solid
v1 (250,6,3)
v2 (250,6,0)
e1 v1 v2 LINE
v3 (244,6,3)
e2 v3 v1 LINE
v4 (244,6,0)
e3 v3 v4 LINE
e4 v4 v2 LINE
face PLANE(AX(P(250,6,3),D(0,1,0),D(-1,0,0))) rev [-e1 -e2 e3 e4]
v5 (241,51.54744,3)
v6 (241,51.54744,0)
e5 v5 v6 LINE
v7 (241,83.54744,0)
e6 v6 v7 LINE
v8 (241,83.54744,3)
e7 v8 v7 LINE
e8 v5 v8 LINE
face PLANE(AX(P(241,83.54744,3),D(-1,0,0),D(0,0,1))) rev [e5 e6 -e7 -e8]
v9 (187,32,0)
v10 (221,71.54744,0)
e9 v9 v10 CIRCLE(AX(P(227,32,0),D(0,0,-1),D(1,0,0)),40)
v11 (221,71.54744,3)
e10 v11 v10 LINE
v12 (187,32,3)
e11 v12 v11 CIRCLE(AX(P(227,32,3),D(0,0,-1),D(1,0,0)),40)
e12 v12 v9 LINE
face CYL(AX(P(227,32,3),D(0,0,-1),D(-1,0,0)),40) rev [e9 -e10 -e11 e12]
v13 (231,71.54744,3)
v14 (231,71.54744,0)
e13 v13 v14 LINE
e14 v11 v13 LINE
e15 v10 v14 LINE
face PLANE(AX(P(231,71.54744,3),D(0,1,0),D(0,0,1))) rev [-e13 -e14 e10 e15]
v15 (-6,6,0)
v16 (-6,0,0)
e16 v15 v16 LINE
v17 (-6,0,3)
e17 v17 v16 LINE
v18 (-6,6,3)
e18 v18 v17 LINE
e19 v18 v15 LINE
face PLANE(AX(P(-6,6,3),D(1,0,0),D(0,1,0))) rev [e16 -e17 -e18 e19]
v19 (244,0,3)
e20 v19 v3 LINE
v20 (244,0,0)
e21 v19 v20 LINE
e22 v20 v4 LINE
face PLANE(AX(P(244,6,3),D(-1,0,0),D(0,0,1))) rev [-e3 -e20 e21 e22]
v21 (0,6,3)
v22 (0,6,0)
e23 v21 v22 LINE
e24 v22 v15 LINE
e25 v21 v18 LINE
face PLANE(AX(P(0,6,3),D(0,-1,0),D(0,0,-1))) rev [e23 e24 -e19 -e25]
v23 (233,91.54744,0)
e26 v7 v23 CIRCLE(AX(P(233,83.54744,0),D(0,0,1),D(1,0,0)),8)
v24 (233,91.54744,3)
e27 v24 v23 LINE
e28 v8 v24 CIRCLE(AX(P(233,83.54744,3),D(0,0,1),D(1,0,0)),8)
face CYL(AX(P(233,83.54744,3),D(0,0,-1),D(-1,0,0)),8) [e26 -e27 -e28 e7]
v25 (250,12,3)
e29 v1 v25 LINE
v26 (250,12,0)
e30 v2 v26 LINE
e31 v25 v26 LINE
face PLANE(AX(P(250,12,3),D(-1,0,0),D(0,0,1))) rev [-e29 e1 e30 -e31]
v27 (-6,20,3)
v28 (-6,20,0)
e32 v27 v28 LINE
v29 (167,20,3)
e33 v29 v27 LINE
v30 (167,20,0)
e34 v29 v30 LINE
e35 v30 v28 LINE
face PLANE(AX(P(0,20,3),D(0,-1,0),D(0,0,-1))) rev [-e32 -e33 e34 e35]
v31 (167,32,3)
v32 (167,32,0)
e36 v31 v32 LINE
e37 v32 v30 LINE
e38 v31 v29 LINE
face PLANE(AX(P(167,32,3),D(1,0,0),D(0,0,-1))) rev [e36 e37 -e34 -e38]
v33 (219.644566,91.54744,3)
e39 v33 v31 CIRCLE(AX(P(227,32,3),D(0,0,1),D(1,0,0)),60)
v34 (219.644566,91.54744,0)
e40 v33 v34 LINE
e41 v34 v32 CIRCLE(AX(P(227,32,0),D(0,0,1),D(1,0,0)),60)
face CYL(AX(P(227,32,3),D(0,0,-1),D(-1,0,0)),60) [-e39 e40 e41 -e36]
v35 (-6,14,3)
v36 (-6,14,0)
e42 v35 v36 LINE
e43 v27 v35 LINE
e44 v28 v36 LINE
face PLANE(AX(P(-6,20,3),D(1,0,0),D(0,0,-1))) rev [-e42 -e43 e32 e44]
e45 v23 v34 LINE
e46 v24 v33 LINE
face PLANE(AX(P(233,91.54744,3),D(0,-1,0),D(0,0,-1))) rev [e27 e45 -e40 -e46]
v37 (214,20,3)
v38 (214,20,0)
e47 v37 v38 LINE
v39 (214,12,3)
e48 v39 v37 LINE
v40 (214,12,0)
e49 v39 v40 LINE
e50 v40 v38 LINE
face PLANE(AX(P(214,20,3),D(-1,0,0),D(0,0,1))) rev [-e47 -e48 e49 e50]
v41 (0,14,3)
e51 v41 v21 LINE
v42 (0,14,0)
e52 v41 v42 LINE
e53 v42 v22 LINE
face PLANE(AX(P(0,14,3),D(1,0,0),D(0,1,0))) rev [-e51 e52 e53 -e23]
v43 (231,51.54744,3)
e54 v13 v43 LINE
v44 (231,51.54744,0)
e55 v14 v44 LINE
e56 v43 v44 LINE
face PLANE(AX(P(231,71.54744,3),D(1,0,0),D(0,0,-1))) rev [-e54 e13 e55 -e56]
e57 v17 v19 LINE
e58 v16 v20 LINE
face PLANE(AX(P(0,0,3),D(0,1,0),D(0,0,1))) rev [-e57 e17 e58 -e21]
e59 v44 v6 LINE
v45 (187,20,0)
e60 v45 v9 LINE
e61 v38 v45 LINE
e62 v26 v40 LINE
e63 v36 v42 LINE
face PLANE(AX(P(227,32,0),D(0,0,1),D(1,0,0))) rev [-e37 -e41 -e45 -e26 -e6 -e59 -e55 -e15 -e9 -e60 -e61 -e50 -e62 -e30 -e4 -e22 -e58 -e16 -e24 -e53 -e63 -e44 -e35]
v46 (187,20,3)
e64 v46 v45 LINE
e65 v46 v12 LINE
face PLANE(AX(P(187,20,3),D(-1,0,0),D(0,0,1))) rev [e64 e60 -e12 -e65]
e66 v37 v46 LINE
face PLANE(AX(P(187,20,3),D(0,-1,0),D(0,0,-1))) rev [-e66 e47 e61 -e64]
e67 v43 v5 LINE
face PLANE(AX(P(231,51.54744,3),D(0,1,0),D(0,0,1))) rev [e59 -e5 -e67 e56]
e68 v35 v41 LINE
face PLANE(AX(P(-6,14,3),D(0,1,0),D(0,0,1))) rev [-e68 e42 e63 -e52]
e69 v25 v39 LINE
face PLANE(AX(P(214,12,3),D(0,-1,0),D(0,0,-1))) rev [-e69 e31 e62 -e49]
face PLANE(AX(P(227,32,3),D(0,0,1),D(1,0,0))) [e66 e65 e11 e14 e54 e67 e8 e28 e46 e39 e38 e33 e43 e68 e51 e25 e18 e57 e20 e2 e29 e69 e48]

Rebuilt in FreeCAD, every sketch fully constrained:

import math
import FreeCAD as App
import Part
import Sketcher

V = App.Vector

doc = App.newDocument("Part")
body = doc.addObject("PartDesign::Body", "Body")

# Sketch on XY plane
sketch1 = body.newObject("Sketcher::SketchObject", "Sketch")
sketch1.AttachmentSupport = (doc.getObject("XY_Plane"), [""])
sketch1.MapMode = "FlatFace"
sketch1.addGeometry([
    Part.LineSegment(V(244, 0, 0), V(244, 6, 0)),  # 0
    Part.LineSegment(V(244, 6, 0), V(250, 6, 0)),  # 1
    Part.LineSegment(V(250, 6, 0), V(250, 12, 0)),  # 2
    Part.LineSegment(V(250, 12, 0), V(214, 12, 0)),  # 3
    Part.LineSegment(V(214, 12, 0), V(214, 20, 0)),  # 4
    Part.LineSegment(V(214, 20, 0), V(187, 20, 0)),  # 5
    Part.LineSegment(V(187, 20, 0), V(187, 32, 0)),  # 6
    Part.ArcOfCircle(Part.Circle(V(227, 32, 0), V(0, 0, 1), 40), math.radians(99), math.radians(180)),  # 7
    Part.LineSegment(V(221, 72, 0), V(231, 72, 0)),  # 8
    Part.LineSegment(V(231, 72, 0), V(231, 52, 0)),  # 9
    Part.LineSegment(V(231, 52, 0), V(241, 52, 0)),  # 10
    Part.LineSegment(V(241, 52, 0), V(241, 84, 0)),  # 11
    Part.ArcOfCircle(Part.Circle(V(233, 84, 0), V(0, 0, 1), 8), math.radians(0), math.radians(90)),  # 12
    Part.LineSegment(V(233, 92, 0), V(220, 92, 0)),  # 13
    Part.ArcOfCircle(Part.Circle(V(227, 32, 0), V(0, 0, 1), 60), math.radians(97), math.radians(180)),  # 14
    Part.LineSegment(V(167, 32, 0), V(167, 20, 0)),  # 15
    Part.LineSegment(V(167, 20, 0), V(-6, 20, 0)),  # 16
    Part.LineSegment(V(-6, 20, 0), V(-6, 14, 0)),  # 17
    Part.LineSegment(V(-6, 14, 0), V(0, 14, 0)),  # 18
    Part.LineSegment(V(0, 14, 0), V(0, 6, 0)),  # 19
    Part.LineSegment(V(0, 6, 0), V(-6, 6, 0)),  # 20
    Part.LineSegment(V(-6, 6, 0), V(-6, 0, 0)),  # 21
    Part.LineSegment(V(-6, 0, 0), V(244, 0, 0)),  # 22
], False)
sketch1.addConstraint([
    Sketcher.Constraint("Coincident", 0, 2, 1, 1),
    Sketcher.Constraint("Coincident", 1, 2, 2, 1),
    Sketcher.Constraint("Coincident", 2, 2, 3, 1),
    Sketcher.Constraint("Coincident", 3, 2, 4, 1),
    Sketcher.Constraint("Coincident", 4, 2, 5, 1),
    Sketcher.Constraint("Coincident", 5, 2, 6, 1),
    Sketcher.Constraint("Tangent", 6, 2, 7, 2),
    Sketcher.Constraint("Coincident", 7, 1, 8, 1),
    Sketcher.Constraint("Coincident", 8, 2, 9, 1),
    Sketcher.Constraint("Coincident", 9, 2, 10, 1),
    Sketcher.Constraint("Coincident", 10, 2, 11, 1),
    Sketcher.Constraint("Tangent", 11, 2, 12, 1),
    Sketcher.Constraint("Tangent", 12, 2, 13, 1),
    Sketcher.Constraint("Coincident", 13, 2, 14, 1),
    Sketcher.Constraint("Tangent", 14, 2, 15, 1),
    Sketcher.Constraint("Coincident", 15, 2, 16, 1),
    Sketcher.Constraint("Coincident", 16, 2, 17, 1),
    Sketcher.Constraint("Coincident", 17, 2, 18, 1),
    Sketcher.Constraint("Coincident", 18, 2, 19, 1),
    Sketcher.Constraint("Coincident", 19, 2, 20, 1),
    Sketcher.Constraint("Coincident", 20, 2, 21, 1),
    Sketcher.Constraint("Coincident", 21, 2, 22, 1),
    Sketcher.Constraint("Coincident", 22, 2, 0, 1),
    Sketcher.Constraint("Vertical", 0),
    Sketcher.Constraint("Horizontal", 1),
    Sketcher.Constraint("Vertical", 2),
    Sketcher.Constraint("Horizontal", 3),
    Sketcher.Constraint("Vertical", 4),
    Sketcher.Constraint("Horizontal", 5),
    Sketcher.Constraint("Vertical", 6),
    Sketcher.Constraint("Horizontal", 8),
    Sketcher.Constraint("Vertical", 9),
    Sketcher.Constraint("Horizontal", 10),
    Sketcher.Constraint("Vertical", 11),
    Sketcher.Constraint("Horizontal", 13),
    Sketcher.Constraint("Vertical", 15),
    Sketcher.Constraint("Horizontal", 16),
    Sketcher.Constraint("Vertical", 17),
    Sketcher.Constraint("Horizontal", 18),
    Sketcher.Constraint("Vertical", 19),
    Sketcher.Constraint("Horizontal", 20),
    Sketcher.Constraint("Vertical", 21),
    Sketcher.Constraint("Horizontal", 22),
    Sketcher.Constraint("Coincident", 14, 3, 7, 3),
    Sketcher.Constraint("PointOnObject", 18, 2, -2),
    Sketcher.Constraint("PointOnObject", 21, 2, -1),
    Sketcher.Constraint("Horizontal", 5, 2, 15, 2),
    Sketcher.Constraint("Horizontal", 1, 2, 19, 2),
    Sketcher.Constraint("Vertical", 17, 2, 20, 2),
    Sketcher.Constraint("Equal", 8, 10),
    Sketcher.Constraint("Equal", 1, 18),
    Sketcher.Constraint("Equal", 20, 0),
    Sketcher.Constraint("Equal", 0, 2),
    Sketcher.Constraint("Equal", 2, 17),
    Sketcher.Constraint("Radius", 7, 40.0),
    Sketcher.Constraint("Radius", 12, 8.0),
    Sketcher.Constraint("Radius", 14, 60.0),
    Sketcher.Constraint("DistanceX", 1, 1, 1, 2, 6.0),
    Sketcher.Constraint("DistanceX", 3, 2, 3, 1, 36.0),
    Sketcher.Constraint("DistanceX", 5, 2, 5, 1, 27.0),
    Sketcher.Constraint("DistanceX", 8, 1, 8, 2, 10.0),
    Sketcher.Constraint("DistanceX", 16, 2, 16, 1, 173.0),
    Sketcher.Constraint("DistanceY", 4, 1, 4, 2, 8.0),
    Sketcher.Constraint("DistanceY", 6, 1, 6, 2, 12.0),
    Sketcher.Constraint("DistanceY", 9, 2, 9, 1, 20.0),
    Sketcher.Constraint("DistanceY", 11, 1, 11, 2, 32.0),
    Sketcher.Constraint("DistanceX", -1, 1, 12, 3, 233.0),
])
pad1 = body.newObject("PartDesign::Pad", "Pad")
pad1.Profile = sketch1
pad1.Length = 3

doc.recompute()
